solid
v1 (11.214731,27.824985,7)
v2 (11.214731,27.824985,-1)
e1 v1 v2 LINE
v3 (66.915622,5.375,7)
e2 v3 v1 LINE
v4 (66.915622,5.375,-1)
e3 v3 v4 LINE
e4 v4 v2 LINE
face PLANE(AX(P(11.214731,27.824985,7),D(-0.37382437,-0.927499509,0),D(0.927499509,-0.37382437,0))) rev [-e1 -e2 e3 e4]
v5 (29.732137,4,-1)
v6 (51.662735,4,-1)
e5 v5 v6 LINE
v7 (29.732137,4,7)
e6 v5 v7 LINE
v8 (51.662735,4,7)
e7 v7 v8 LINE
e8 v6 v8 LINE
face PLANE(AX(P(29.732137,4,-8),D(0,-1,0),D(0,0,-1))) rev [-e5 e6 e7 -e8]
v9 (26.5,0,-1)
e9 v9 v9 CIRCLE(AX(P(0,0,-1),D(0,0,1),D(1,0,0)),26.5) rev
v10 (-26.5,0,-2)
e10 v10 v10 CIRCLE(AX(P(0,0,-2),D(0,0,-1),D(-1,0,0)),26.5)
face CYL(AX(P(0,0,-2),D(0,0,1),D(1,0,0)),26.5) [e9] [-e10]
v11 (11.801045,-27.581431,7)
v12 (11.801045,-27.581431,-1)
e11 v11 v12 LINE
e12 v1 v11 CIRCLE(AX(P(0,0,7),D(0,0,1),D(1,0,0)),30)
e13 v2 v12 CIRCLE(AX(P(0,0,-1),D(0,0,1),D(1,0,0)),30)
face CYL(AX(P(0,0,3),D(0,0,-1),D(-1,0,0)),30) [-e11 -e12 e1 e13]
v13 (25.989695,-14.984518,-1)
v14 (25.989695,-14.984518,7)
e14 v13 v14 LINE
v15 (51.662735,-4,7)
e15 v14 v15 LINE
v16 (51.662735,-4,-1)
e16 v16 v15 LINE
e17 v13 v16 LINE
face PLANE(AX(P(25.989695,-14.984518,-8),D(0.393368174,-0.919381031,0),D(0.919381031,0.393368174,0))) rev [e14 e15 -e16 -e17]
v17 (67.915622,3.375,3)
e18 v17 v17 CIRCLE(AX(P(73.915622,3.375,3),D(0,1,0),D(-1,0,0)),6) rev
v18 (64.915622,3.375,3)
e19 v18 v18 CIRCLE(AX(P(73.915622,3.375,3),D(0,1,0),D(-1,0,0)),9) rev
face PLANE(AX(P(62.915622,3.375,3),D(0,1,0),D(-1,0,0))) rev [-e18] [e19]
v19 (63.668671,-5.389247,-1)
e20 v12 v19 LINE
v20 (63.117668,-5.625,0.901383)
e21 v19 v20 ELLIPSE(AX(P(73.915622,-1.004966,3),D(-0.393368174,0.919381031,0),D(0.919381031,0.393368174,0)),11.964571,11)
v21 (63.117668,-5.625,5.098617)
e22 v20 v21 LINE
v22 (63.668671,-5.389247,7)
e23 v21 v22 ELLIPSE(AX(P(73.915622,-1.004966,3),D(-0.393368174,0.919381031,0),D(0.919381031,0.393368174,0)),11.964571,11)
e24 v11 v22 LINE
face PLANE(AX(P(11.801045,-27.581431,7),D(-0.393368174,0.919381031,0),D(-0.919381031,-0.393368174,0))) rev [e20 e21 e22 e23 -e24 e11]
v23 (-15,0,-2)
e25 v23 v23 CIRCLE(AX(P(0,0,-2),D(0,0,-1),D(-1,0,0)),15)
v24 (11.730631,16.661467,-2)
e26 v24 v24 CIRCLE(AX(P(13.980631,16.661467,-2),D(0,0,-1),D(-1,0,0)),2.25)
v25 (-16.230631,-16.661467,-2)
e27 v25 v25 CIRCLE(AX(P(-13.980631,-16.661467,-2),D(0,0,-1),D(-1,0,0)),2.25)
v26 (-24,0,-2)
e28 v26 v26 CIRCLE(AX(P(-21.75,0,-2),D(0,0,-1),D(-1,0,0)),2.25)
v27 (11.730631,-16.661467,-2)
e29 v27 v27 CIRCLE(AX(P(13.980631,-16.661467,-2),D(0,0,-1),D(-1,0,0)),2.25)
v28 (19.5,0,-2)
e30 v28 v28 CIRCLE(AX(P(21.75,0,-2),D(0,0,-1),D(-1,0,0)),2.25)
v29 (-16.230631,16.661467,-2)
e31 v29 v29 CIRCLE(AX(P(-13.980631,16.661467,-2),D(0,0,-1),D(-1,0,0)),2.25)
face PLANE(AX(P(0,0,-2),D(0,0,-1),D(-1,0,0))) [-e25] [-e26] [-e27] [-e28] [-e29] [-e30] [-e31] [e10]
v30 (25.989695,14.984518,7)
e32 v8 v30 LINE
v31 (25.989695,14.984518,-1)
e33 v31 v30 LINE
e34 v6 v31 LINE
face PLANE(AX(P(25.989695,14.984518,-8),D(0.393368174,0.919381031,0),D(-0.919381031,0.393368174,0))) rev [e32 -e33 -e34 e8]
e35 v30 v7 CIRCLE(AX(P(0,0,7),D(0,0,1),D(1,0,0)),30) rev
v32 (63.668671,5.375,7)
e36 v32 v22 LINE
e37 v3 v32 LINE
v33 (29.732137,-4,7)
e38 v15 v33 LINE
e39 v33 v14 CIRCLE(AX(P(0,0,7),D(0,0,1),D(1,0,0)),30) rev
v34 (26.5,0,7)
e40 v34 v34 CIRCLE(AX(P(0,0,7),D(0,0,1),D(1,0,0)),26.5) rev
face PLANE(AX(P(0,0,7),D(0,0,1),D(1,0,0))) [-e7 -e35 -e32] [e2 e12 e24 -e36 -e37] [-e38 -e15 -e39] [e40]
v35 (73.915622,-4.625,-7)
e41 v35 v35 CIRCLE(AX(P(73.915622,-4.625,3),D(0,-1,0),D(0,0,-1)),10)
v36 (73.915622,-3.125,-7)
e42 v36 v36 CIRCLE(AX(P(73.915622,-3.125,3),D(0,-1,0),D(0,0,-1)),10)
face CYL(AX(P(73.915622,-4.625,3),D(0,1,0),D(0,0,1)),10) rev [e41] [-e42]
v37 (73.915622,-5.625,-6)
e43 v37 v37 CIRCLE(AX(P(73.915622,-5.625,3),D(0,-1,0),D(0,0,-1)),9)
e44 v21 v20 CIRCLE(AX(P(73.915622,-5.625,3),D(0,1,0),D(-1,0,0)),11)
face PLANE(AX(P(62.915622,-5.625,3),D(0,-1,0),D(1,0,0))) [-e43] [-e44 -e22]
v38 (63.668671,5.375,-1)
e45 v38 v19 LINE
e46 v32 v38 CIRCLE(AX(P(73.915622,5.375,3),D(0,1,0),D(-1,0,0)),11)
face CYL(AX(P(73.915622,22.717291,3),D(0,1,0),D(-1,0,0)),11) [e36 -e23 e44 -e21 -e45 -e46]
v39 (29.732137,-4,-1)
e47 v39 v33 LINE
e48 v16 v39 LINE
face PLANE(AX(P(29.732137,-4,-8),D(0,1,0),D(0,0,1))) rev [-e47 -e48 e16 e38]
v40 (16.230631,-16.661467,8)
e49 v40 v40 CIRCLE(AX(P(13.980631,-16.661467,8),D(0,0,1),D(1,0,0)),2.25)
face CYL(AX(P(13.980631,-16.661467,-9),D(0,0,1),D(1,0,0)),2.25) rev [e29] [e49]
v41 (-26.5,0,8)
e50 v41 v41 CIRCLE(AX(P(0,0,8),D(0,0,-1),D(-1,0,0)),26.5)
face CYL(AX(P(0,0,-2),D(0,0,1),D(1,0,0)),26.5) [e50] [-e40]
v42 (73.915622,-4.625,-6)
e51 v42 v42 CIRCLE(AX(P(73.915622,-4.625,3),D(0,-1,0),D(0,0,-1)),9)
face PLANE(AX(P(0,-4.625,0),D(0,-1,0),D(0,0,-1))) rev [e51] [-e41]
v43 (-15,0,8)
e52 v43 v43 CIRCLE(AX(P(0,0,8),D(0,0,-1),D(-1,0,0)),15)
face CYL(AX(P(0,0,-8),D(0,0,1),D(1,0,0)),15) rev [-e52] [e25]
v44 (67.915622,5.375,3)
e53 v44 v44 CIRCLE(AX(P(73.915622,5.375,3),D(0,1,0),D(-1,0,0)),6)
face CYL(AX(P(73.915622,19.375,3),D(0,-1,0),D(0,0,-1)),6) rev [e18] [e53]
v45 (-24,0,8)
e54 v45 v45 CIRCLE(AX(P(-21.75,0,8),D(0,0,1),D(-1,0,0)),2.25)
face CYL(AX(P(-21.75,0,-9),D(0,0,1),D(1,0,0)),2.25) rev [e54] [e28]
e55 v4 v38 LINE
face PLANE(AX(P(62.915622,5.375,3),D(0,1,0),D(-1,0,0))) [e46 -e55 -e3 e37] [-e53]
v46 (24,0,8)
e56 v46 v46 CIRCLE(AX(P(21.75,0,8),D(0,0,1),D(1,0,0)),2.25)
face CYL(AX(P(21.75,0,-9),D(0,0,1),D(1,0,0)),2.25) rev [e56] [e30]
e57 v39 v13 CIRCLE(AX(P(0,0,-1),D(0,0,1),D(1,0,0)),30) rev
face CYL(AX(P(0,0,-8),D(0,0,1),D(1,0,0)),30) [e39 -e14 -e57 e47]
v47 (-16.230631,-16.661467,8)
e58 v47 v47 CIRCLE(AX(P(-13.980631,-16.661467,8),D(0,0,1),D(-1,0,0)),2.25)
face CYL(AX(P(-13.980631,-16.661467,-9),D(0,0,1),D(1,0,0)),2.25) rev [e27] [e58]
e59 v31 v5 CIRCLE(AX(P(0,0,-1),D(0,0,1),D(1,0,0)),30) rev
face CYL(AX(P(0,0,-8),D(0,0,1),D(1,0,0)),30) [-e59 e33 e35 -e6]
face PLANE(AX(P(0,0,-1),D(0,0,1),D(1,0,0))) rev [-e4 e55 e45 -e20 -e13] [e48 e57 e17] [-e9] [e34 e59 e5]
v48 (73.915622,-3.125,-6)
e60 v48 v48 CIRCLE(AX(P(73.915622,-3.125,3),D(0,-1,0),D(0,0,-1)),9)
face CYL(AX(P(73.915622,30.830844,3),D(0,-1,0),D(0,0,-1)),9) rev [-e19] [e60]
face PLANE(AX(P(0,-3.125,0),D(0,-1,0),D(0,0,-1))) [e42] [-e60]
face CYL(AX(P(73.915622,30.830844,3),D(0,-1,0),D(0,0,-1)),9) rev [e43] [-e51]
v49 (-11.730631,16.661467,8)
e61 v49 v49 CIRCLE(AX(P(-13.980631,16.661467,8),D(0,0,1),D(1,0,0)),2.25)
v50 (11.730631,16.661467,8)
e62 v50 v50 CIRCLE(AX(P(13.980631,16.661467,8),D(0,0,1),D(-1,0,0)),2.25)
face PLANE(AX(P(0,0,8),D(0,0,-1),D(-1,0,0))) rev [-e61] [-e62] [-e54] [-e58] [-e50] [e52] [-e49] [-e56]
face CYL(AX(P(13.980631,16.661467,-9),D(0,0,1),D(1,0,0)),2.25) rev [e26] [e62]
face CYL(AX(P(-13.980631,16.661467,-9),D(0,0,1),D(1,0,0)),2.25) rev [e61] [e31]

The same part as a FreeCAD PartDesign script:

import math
import FreeCAD as App
import Part
import Sketcher
from FreeCAD import Vector

doc = App.newDocument("Part")
body = doc.addObject("PartDesign::Body", "Body")

# Sketch on XY plane
sketch1 = doc.addObject("Sketcher::SketchObject", "Sketch")
body.addObject(sketch1)
sketch1.AttachmentSupport = (doc.XY_Plane, [""])
sketch1.MapMode = "FlatFace"
sketch1.addGeometry(Part.Circle(Vector(0, 0, 0), Vector(0, 0, 1), 30), False)
sketch1.addConstraint([
    Sketcher.Constraint("Coincident", 0, 3, -1, 1),
    Sketcher.Constraint("Diameter", 0, 60.0),
])
pad1 = doc.addObject("PartDesign::Pad", "Pad")
body.addObject(pad1)
pad1.Profile = sketch1
pad1.Length = 3
body2 = doc.addObject("PartDesign::Body", "Body001")

# Sketch on XY plane
sketch2 = doc.addObject("Sketcher::SketchObject", "Sketch001")
body2.addObject(sketch2)
sketch2.AttachmentSupport = (doc.getObject("XY_Plane001"), [""])
sketch2.MapMode = "FlatFace"
sketch2.AttachmentOffset = App.Placement(Vector(0, 0, 3), App.Rotation())
sketch2.addGeometry([
    Part.LineSegment(Vector(63, 5, 0), Vector(63, -6, 0)),
    Part.LineSegment(Vector(63, -6, 0), Vector(74, -6, 0)),
    Part.LineSegment(Vector(74, -6, 0), Vector(74, 5, 0)),
    Part.LineSegment(Vector(74, 5, 0), Vector(63, 5, 0)),
], False)
sketch2.addGeometry(Part.LineSegment(Vector(74, 5, 0), Vector(74, -6, 0)), True)  # axis
sketch2.addConstraint([
    Sketcher.Constraint("Coincident", 0, 2, 1, 1),
    Sketcher.Constraint("Coincident", 1, 2, 2, 1),
    Sketcher.Constraint("Coincident", 2, 2, 3, 1),
    Sketcher.Constraint("Coincident", 3, 2, 0, 1),
    Sketcher.Constraint("Vertical", 0),
    Sketcher.Constraint("Horizontal", 1),
    Sketcher.Constraint("Vertical", 2),
    Sketcher.Constraint("Horizontal", 3),
    Sketcher.Constraint("Vertical", 4),
    Sketcher.Constraint("Coincident", 4, 1, 2, 2),
    Sketcher.Constraint("Horizontal", 0, 2, 4, 2),
    Sketcher.Constraint("Equal", 3, 0),
    Sketcher.Constraint("DistanceX", 1, 1, 1, 2, 11.0),
    Sketcher.Constraint("DistanceY", 0, 2, -1, 1, 5.625),
    Sketcher.Constraint("DistanceX", -1, 1, 0, 2, 62.915622),
])
revolution = doc.addObject("PartDesign::Revolution", "Revolution")
body2.addObject(revolution)
revolution.Profile = sketch2
revolution.ReferenceAxis = (sketch2, ["Axis0"])
revolution.Angle = 360
body.AllowCompound = True
doc.recompute()

boolean = doc.addObject("PartDesign::Boolean", "Boolean")
body.addObject(boolean)
boolean.Type = "Fuse"
boolean.addObjects([body2])

# Sketch on XY plane
sketch3 = doc.addObject("Sketcher::SketchObject", "Sketch002")
body.addObject(sketch3)
sketch3.AttachmentSupport = (doc.XY_Plane, [""])
sketch3.MapMode = "FlatFace"
sketch3.AttachmentOffset = App.Placement(Vector(0, 0, 3), App.Rotation())
sketch3.addGeometry([
    Part.LineSegment(Vector(67, 5, 0), Vector(11, 28, 0)),
    Part.ArcOfCircle(Part.Circle(Vector(0, 0, 0), Vector(0, 0, 1), 30), math.radians(68), math.radians(293)),
    Part.LineSegment(Vector(12, -28, 0), Vector(67, -4, 0)),
    Part.LineSegment(Vector(67, -4, 0), Vector(67, 5, 0)),
], False)
sketch3.addConstraint([
    Sketcher.Constraint("Tangent", 0, 2, 1, 1),
    Sketcher.Constraint("Tangent", 1, 2, 2, 1),
    Sketcher.Constraint("Coincident", 2, 2, 3, 1),
    Sketcher.Constraint("Coincident", 3, 2, 0, 1),
    Sketcher.Constraint("Vertical", 3),
    Sketcher.Constraint("Coincident", 1, 3, -1, 1),
    Sketcher.Constraint("Radius", 1, 30.0),
    Sketcher.Constraint("DistanceY", 2, 2, -1, 1, 4.0),
    Sketcher.Constraint("DistanceY", 3, 1, 3, 2, 9.375),
    Sketcher.Constraint("Distance", 0, 60.0549),
])
pad2 = doc.addObject("PartDesign::Pad", "Pad001")
body.addObject(pad2)
pad2.Profile = sketch3
pad2.Length = 8
pad2.Midplane = True

# Sketch on XZ plane
sketch4 = doc.addObject("Sketcher::SketchObject", "Sketch003")
body.addObject(sketch4)
sketch4.AttachmentSupport = (doc.XZ_Plane, [""])
sketch4.MapMode = "FlatFace"
sketch4.AttachmentOffset = App.Placement(Vector(0, 0, 5.625), App.Rotation())
sketch4.addGeometry(Part.Circle(Vector(74, 3, 0), Vector(0, 0, 1), 6), False)
sketch4.addConstraint([
    Sketcher.Constraint("Diameter", 0, 12.0),
    Sketcher.Constraint("DistanceY", -1, 1, 0, 3, 3.0),
    Sketcher.Constraint("DistanceX", -1, 1, 0, 3, 73.915622),
])
pocket1 = doc.addObject("PartDesign::Pocket", "Pocket")
body.addObject(pocket1)
pocket1.Profile = sketch4
pocket1.Length = 25

# Sketch on XZ plane
sketch5 = doc.addObject("Sketcher::SketchObject", "Sketch004")
body.addObject(sketch5)
sketch5.AttachmentSupport = (doc.XZ_Plane, [""])
sketch5.MapMode = "FlatFace"
sketch5.AttachmentOffset = App.Placement(Vector(0, 0, 5.625), App.Rotation())
sketch5.addGeometry(Part.Circle(Vector(74, 3, 0), Vector(0, 0, 1), 9), False)
sketch5.addConstraint([
    Sketcher.Constraint("Diameter", 0, 18.0),
    Sketcher.Constraint("DistanceY", -1, 1, 0, 3, 3.0),
    Sketcher.Constraint("DistanceX", -1, 1, 0, 3, 73.915622),
])
pocket2 = doc.addObject("PartDesign::Pocket", "Pocket001")
body.addObject(pocket2)
pocket2.Profile = sketch5
pocket2.Length = 9

# Sketch on XZ plane
sketch6 = doc.addObject("Sketcher::SketchObject", "Sketch005")
body.addObject(sketch6)
sketch6.AttachmentSupport = (doc.XZ_Plane, [""])
sketch6.MapMode = "FlatFace"
sketch6.AttachmentOffset = App.Placement(Vector(0, 0, 4.625), App.Rotation())
sketch6.addGeometry(Part.Circle(Vector(74, 3, 0), Vector(0, 0, 1), 10), False)
sketch6.addConstraint([
    Sketcher.Constraint("Diameter", 0, 20.0),
    Sketcher.Constraint("DistanceY", -1, 1, 0, 3, 3.0),
    Sketcher.Constraint("DistanceX", -1, 1, 0, 3, 73.915622),
])
pocket3 = doc.addObject("PartDesign::Pocket", "Pocket002")
body.addObject(pocket3)
pocket3.Profile = sketch6
pocket3.Length = 1.5

# Sketch on XY plane
sketch7 = doc.addObject("Sketcher::SketchObject", "Sketch006")
body.addObject(sketch7)
sketch7.AttachmentSupport = (doc.XY_Plane, [""])
sketch7.MapMode = "FlatFace"
sketch7.AttachmentOffset = App.Placement(Vector(0, 0, 3), App.Rotation())
sketch7.addGeometry(Part.Circle(Vector(0, 0, 0), Vector(0, 0, 1), 26), False)
sketch7.addConstraint([
    Sketcher.Constraint("Coincident", 0, 3, -1, 1),
    Sketcher.Constraint("Diameter", 0, 53.0),
])
pad3 = doc.addObject("PartDesign::Pad", "Pad002")
body.addObject(pad3)
pad3.Profile = sketch7
pad3.Length = 10
pad3.Midplane = True

# Sketch on XY plane
sketch8 = doc.addObject("Sketcher::SketchObject", "Sketch007")
body.addObject(sketch8)
sketch8.AttachmentSupport = (doc.XY_Plane, [""])
sketch8.MapMode = "FlatFace"
sketch8.AttachmentOffset = App.Placement(Vector(0, 0, 7), App.Rotation())
sketch8.addGeometry([
    Part.Circle(Vector(0, 0, 0), Vector(0, 0, 1), 15),  # 0
    Part.LineSegment(Vector(26, -15, 0), Vector(52, -4, 0)),  # 1
    Part.LineSegment(Vector(52, -4, 0), Vector(30, -4, 0)),  # 2
    Part.ArcOfCircle(Part.Circle(Vector(0, 0, 0), Vector(0, 0, 1), 30), math.radians(-30), math.radians(-8)),  # 3
    Part.LineSegment(Vector(30, 4, 0), Vector(52, 4, 0)),  # 4
    Part.LineSegment(Vector(52, 4, 0), Vector(26, 15, 0)),  # 5
    Part.ArcOfCircle(Part.Circle(Vector(0, 0, 0), Vector(0, 0, 1), 30), math.radians(8), math.radians(30)),  # 6
], False)
sketch8.addConstraint([
    Sketcher.Constraint("Coincident", 1, 2, 2, 1),
    Sketcher.Constraint("Coincident", 2, 2, 3, 2),
    Sketcher.Constraint("Coincident", 3, 1, 1, 1),
    Sketcher.Constraint("Coincident", 4, 2, 5, 1),
    Sketcher.Constraint("Coincident", 5, 2, 6, 2),
    Sketcher.Constraint("Coincident", 6, 1, 4, 1),
    Sketcher.Constraint("Horizontal", 2),
    Sketcher.Constraint("Horizontal", 4),
    Sketcher.Constraint("Coincident", 0, 3, -1, 1),
    Sketcher.Constraint("Coincident", 3, 3, -1, 1),
    Sketcher.Constraint("Coincident", 6, 3, -1, 1),
    Sketcher.Constraint("Equal", 3, 6),
    Sketcher.Constraint("Symmetric", 1, 2, 4, 2, -1),
    Sketcher.Constraint("Vertical", 3, 1, 5, 2),
    Sketcher.Constraint("Diameter", 0, 30.0),
    Sketcher.Constraint("Radius", 3, 30.0),
    Sketcher.Constraint("DistanceY", 1, 2, -1, 1, 4.0),
    Sketcher.Constraint("DistanceX", 2, 2, 2, 1, 21.930598),
    Sketcher.Constraint("DistanceX", 3, 1, 1, 2, 25.673041),
])
pocket4 = doc.addObject("PartDesign::Pocket", "Pocket003")
body.addObject(pocket4)
pocket4.Profile = sketch8
pocket4.Type = "ThroughAll"
pocket4.Midplane = True

# Sketch on XY plane
sketch9 = doc.addObject("Sketcher::SketchObject", "Sketch008")
body.addObject(sketch9)
sketch9.AttachmentSupport = (doc.XY_Plane, [""])
sketch9.MapMode = "FlatFace"
sketch9.AttachmentOffset = App.Placement(Vector(0, 0, 8), App.Rotation())
sketch9.addGeometry([
    Part.Circle(Vector(21.8, 0, 0), Vector(0, 0, 1), 2.2),  # 0
    Part.Circle(Vector(14, -16.7, 0), Vector(0, 0, 1), 2.2),  # 1
    Part.Circle(Vector(-21.8, 0, 0), Vector(0, 0, 1), 2.2),  # 2
    Part.Circle(Vector(-14, -16.7, 0), Vector(0, 0, 1), 2.2),  # 3
    Part.Circle(Vector(14, 16.7, 0), Vector(0, 0, 1), 2.2),  # 4
    Part.Circle(Vector(-14, 16.7, 0), Vector(0, 0, 1), 2.2),  # 5
], False)
sketch9.addConstraint([
    Sketcher.Constraint("Equal", 0, 1),
    Sketcher.Constraint("Equal", 1, 2),
    Sketcher.Constraint("Equal", 2, 3),
    Sketcher.Constraint("Equal", 3, 4),
    Sketcher.Constraint("Equal", 4, 5),
    Sketcher.Constraint("Symmetric", 0, 3, 2, 3, -1, 1),
    Sketcher.Constraint("Symmetric", 3, 3, 4, 3, -1, 1),
    Sketcher.Constraint("Symmetric", 1, 3, 5, 3, -1, 1),
    Sketcher.Constraint("Symmetric", 1, 3, 3, 3, -2),
    Sketcher.Constraint("PointOnObject", 0, 3, -1),
    Sketcher.Constraint("Diameter", 0, 4.5),
    Sketcher.Constraint("DistanceX", 2, 3, 0, 3, 43.5),
    Sketcher.Constraint("DistanceX", -1, 1, 1, 3, 13.980631),
    Sketcher.Constraint("DistanceY", 1, 3, -1, 1, 16.661467),
])
pocket5 = doc.addObject("PartDesign::Pocket", "Pocket004")
body.addObject(pocket5)
pocket5.Profile = sketch9
pocket5.Length = 17

doc.recompute()
